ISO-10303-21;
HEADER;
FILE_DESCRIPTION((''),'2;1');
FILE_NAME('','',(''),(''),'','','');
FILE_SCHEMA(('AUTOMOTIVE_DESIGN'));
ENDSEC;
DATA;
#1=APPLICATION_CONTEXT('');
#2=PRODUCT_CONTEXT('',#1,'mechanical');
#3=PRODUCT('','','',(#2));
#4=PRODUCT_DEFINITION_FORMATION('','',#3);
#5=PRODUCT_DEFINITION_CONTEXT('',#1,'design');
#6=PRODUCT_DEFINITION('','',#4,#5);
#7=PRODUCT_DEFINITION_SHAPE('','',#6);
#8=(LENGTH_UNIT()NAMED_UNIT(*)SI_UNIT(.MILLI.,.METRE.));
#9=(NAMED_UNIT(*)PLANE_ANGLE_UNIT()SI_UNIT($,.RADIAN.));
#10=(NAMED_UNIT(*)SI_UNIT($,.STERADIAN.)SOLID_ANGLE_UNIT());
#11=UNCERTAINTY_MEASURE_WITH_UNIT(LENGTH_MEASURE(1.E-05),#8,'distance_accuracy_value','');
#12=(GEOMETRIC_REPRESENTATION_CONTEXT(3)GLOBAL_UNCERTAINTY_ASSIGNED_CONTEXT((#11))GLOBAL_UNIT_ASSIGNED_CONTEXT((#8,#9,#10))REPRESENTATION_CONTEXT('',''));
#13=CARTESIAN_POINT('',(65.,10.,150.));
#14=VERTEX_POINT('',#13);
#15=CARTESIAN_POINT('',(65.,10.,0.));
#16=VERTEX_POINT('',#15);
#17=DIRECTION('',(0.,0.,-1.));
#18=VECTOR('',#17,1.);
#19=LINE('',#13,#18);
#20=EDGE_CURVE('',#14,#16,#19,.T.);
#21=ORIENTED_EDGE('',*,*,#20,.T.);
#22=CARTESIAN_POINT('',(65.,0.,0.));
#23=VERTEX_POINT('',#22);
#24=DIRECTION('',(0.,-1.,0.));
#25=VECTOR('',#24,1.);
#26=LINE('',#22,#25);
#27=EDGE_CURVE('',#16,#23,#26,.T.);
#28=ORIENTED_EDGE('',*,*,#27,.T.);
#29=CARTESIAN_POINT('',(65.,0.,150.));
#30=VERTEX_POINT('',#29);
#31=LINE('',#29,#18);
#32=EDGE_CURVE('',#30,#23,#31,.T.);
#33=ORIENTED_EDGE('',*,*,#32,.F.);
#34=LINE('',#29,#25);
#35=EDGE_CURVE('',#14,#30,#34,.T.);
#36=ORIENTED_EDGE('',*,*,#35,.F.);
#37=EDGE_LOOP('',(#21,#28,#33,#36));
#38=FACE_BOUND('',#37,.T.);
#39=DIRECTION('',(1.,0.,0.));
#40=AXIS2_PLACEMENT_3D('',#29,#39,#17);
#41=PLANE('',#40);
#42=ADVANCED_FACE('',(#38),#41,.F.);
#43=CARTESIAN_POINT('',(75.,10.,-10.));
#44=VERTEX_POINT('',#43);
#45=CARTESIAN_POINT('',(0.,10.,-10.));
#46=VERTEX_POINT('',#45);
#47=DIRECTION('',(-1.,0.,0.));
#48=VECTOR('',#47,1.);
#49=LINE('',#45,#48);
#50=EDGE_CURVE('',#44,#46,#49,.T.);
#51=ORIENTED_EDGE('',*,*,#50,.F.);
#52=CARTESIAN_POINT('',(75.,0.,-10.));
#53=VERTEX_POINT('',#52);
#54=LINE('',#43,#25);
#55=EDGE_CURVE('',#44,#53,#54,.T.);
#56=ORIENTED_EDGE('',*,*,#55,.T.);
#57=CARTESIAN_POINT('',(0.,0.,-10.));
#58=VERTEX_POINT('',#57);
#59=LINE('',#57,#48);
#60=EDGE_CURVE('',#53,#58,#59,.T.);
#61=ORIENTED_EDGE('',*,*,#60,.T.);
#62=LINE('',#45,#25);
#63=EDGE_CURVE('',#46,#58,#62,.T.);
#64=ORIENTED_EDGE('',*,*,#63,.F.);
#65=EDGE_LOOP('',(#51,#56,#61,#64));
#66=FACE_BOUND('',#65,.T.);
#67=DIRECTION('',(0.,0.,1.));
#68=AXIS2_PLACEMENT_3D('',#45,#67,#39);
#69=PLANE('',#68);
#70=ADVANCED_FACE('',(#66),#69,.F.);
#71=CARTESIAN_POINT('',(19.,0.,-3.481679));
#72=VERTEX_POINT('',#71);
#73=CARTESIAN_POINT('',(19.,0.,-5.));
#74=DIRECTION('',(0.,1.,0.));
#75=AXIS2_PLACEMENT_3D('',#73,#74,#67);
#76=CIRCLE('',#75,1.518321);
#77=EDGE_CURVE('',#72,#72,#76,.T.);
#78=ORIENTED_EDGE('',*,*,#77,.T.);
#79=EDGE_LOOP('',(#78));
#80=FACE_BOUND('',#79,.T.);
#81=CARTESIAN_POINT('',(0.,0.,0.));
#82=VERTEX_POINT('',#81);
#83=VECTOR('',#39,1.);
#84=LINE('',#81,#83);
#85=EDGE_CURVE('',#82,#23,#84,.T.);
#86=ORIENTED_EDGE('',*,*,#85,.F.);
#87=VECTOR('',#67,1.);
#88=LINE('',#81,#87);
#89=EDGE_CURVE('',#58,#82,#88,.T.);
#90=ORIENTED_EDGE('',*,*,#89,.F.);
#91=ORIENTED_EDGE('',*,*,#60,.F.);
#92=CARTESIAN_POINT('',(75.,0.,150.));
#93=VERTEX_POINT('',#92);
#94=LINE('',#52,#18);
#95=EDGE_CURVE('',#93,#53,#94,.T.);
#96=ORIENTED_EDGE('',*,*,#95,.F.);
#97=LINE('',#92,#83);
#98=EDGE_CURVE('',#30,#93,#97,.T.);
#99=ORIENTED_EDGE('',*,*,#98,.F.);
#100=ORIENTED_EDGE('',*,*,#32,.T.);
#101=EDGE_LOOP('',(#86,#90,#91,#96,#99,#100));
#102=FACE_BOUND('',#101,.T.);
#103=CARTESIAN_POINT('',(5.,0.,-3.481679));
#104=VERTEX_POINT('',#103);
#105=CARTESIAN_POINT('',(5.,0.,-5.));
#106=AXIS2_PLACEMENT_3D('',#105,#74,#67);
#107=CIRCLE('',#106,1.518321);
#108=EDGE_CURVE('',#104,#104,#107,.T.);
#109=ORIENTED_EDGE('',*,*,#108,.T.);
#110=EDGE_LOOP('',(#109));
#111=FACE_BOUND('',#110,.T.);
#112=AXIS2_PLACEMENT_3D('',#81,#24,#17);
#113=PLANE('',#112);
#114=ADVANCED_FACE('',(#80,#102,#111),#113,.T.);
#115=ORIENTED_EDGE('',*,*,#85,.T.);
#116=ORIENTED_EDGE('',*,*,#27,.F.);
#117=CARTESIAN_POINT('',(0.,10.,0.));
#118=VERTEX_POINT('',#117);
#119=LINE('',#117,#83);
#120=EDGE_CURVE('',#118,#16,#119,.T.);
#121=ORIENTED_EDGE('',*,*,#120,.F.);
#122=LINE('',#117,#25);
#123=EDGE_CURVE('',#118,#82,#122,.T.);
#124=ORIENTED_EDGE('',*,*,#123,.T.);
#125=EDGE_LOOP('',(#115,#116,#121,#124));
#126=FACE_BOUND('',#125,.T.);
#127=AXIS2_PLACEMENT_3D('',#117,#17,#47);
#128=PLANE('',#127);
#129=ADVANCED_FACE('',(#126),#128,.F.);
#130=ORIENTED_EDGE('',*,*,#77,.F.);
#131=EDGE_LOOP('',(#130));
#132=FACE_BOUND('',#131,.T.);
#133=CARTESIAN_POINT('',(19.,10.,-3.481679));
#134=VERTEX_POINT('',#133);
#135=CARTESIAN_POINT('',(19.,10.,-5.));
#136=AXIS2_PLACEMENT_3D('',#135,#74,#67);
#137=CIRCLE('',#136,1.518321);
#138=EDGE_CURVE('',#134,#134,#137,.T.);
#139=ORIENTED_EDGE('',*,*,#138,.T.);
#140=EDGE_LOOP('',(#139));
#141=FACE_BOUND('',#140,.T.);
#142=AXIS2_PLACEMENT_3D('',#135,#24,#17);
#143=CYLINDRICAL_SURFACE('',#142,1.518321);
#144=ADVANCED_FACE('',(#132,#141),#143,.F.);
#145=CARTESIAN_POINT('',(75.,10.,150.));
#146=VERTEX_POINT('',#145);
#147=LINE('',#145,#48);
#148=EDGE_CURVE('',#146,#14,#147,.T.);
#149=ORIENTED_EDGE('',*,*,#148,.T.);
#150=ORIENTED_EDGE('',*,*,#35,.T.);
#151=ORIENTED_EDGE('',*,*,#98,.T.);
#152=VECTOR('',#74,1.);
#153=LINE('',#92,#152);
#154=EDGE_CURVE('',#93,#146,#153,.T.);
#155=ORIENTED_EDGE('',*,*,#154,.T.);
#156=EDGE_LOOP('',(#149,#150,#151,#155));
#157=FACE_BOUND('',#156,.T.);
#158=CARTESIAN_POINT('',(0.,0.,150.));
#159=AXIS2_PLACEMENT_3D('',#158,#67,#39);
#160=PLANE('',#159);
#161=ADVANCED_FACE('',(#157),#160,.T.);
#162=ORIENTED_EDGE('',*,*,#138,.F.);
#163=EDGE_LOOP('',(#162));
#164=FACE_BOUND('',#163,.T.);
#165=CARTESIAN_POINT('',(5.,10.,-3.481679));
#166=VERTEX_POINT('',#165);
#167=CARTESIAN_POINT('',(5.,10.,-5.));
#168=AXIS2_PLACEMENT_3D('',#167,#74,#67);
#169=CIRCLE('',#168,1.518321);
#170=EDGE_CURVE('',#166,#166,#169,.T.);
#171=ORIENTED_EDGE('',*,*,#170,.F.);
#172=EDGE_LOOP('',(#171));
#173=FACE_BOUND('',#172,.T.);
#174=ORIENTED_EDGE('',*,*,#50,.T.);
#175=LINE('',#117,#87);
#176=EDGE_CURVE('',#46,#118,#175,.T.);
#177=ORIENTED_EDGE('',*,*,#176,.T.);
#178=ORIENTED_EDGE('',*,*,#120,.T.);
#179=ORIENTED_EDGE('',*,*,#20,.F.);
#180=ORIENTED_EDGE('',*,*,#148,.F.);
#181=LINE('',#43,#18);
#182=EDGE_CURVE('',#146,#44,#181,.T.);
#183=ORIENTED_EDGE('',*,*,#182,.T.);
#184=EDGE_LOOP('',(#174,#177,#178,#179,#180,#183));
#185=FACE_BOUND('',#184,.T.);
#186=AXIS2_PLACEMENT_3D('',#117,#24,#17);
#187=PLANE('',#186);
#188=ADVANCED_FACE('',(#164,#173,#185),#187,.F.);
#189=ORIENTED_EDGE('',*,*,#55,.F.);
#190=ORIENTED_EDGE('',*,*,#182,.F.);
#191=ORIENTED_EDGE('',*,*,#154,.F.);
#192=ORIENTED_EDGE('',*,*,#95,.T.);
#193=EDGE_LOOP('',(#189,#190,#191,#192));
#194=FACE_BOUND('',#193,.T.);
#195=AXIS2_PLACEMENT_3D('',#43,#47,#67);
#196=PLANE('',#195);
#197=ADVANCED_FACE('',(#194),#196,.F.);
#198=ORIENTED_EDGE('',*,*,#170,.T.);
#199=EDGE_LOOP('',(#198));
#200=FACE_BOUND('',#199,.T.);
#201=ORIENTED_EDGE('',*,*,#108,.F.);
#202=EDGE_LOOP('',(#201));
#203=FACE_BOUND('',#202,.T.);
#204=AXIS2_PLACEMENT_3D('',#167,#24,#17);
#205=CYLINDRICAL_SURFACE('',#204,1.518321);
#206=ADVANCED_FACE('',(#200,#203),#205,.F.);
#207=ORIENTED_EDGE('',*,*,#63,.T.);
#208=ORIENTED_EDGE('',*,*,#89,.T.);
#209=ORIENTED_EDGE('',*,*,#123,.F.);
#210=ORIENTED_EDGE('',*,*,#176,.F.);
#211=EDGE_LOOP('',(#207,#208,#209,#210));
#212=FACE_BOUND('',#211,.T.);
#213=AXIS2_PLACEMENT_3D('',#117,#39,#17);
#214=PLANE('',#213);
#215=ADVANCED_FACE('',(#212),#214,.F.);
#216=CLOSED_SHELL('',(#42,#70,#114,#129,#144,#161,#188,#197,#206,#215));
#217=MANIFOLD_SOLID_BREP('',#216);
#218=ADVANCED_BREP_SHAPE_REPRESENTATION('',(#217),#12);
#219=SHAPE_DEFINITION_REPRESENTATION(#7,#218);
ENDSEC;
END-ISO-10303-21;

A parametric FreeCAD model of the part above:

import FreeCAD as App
import Part
import Sketcher
from FreeCAD import Vector
Q = App.Units.Quantity

doc = App.newDocument("Part")
body = doc.addObject("PartDesign::Body", "Body")

sketch1 = body.newObject("Sketcher::SketchObject", "Sketch")
sketch1.AttachmentSupport = (doc.getObject("XZ_Plane"), [""])
sketch1.MapMode = "FlatFace"
sketch1.addGeometry([
    Part.LineSegment(Vector(0, -10, 0), Vector(0, 0, 0)),
    Part.LineSegment(Vector(0, 0, 0), Vector(75, 0, 0)),
    Part.LineSegment(Vector(75, 0, 0), Vector(75, -10, 0)),
    Part.LineSegment(Vector(75, -10, 0), Vector(0, -10, 0)),
    Part.Circle(Vector(5, -5, 0), Vector(0, 0, 1), 1.5),
    Part.Circle(Vector(19, -5, 0), Vector(0, 0, 1), 1.5),
], False)
sketch1.addConstraint([
    Sketcher.Constraint("Coincident", 0, 2, 1, 1),
    Sketcher.Constraint("Coincident", 1, 2, 2, 1),
    Sketcher.Constraint("Coincident", 2, 2, 3, 1),
    Sketcher.Constraint("Coincident", 3, 2, 0, 1),
    Sketcher.Constraint("Vertical", 0),
    Sketcher.Constraint("Horizontal", 1),
    Sketcher.Constraint("Vertical", 2),
    Sketcher.Constraint("Horizontal", 3),
    Sketcher.Constraint("Coincident", 0, 2, -1, 1),
    Sketcher.Constraint("Equal", 4, 5),
    Sketcher.Constraint("Horizontal", 4, 3, 5, 3),
    Sketcher.Constraint("DistanceX", 1, 1, 1, 2, Q("75 mm")),
    Sketcher.Constraint("DistanceY", 0, 1, 0, 2, Q("10 mm")),
    Sketcher.Constraint("DistanceX", -1, 1, 4, 3, Q("5 mm")),
    Sketcher.Constraint("DistanceY", 4, 3, -1, 1, Q("5 mm")),
    Sketcher.Constraint("DistanceX", -1, 1, 5, 3, Q("19 mm")),
    Sketcher.Constraint("Diameter", 4, Q("3.036641 mm")),
])
pad1 = body.newObject("PartDesign::Pad", "Pad")
pad1.Profile = sketch1
pad1.Length = 10
pad1.Reversed = True

sketch2 = body.newObject("Sketcher::SketchObject", "Sketch001")
sketch2.AttachmentSupport = (doc.getObject("XY_Plane"), [""])
sketch2.MapMode = "FlatFace"
sketch2.addGeometry([
    Part.LineSegment(Vector(65, 10, 0), Vector(65, 0, 0)),
    Part.LineSegment(Vector(65, 0, 0), Vector(75, 0, 0)),
    Part.LineSegment(Vector(75, 0, 0), Vector(75, 10, 0)),
    Part.LineSegment(Vector(75, 10, 0), Vector(65, 10, 0)),
], False)
sketch2.addConstraint([
    Sketcher.Constraint("Coincident", 0, 2, 1, 1),
    Sketcher.Constraint("Coincident", 1, 2, 2, 1),
    Sketcher.Constraint("Coincident", 2, 2, 3, 1),
    Sketcher.Constraint("Coincident", 3, 2, 0, 1),
    Sketcher.Constraint("Vertical", 0),
    Sketcher.Constraint("Horizontal", 1),
    Sketcher.Constraint("Vertical", 2),
    Sketcher.Constraint("Horizontal", 3),
    Sketcher.Constraint("PointOnObject", 0, 2, -1),
    Sketcher.Constraint("Equal", 3, 0),
    Sketcher.Constraint("DistanceX", 1, 1, 1, 2, Q("10 mm")),
    Sketcher.Constraint("DistanceX", -1, 1, 0, 2, Q("65 mm")),
])
pad2 = body.newObject("PartDesign::Pad", "Pad001")
pad2.Profile = sketch2
pad2.Length = 150

doc.recompute()
